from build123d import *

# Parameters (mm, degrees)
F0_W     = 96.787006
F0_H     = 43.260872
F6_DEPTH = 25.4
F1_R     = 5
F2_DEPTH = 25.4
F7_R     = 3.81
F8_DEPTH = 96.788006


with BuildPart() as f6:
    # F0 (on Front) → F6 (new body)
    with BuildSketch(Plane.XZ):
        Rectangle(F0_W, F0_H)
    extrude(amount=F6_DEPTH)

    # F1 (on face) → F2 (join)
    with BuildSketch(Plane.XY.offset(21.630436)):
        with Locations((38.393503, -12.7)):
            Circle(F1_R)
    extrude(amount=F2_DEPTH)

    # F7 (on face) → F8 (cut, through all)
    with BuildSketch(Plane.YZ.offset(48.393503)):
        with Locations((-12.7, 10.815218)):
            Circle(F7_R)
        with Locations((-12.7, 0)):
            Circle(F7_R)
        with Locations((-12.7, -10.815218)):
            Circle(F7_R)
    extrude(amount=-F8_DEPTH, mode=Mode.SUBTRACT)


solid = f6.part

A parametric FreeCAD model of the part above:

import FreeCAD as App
import Part
import Sketcher

V = App.Vector
Q = App.Units.Quantity

doc = App.newDocument("Part")
body = doc.addObject("PartDesign::Body", "Body")

sketch1 = body.newObject("Sketcher::SketchObject", "Sketch")
sketch1.AttachmentSupport = (doc.getObject("XZ_Plane"), [""])
sketch1.MapMode = "FlatFace"
sketch1.addGeometry([
    Part.LineSegment(V(-48, 22, 0), V(-48, -22, 0)),
    Part.LineSegment(V(-48, -22, 0), V(48, -22, 0)),
    Part.LineSegment(V(48, -22, 0), V(48, 22, 0)),
    Part.LineSegment(V(48, 22, 0), V(-48, 22, 0)),
], False)
sketch1.addConstraint([
    Sketcher.Constraint("Coincident", 0, 2, 1, 1),
    Sketcher.Constraint("Coincident", 1, 2, 2, 1),
    Sketcher.Constraint("Coincident", 2, 2, 3, 1),
    Sketcher.Constraint("Coincident", 3, 2, 0, 1),
    Sketcher.Constraint("Vertical", 0),
    Sketcher.Constraint("Horizontal", 1),
    Sketcher.Constraint("Vertical", 2),
    Sketcher.Constraint("Horizontal", 3),
    Sketcher.Constraint("Symmetric", 0, 2, 2, 2, -1, 1),
    Sketcher.Constraint("DistanceX", 1, 1, 1, 2, 96.787006),
    Sketcher.Constraint("DistanceY", 0, 2, 0, 1, 43.260872),
])
pad1 = body.newObject("PartDesign::Pad", "Pad")
pad1.Profile = sketch1
pad1.Length = Q("1 in")

sketch2 = body.newObject("Sketcher::SketchObject", "Sketch001")
sketch2.AttachmentSupport = (doc.getObject("XY_Plane"), [""])
sketch2.MapMode = "FlatFace"
sketch2.AttachmentOffset = App.Placement(V(0, 0, 21.630436), App.Rotation())
sketch2.addGeometry(Part.Circle(V(38, -13, 0), V(0, 0, 1), 5), False)
sketch2.addConstraint([
    Sketcher.Constraint("DistanceY", 0, 3, -1, 1, Q("0.5 in")),
    Sketcher.Constraint("Diameter", 0, 10.0),
    Sketcher.Constraint("DistanceX", -1, 1, 0, 3, 38.393503),
])
pad2 = body.newObject("PartDesign::Pad", "Pad001")
pad2.Profile = sketch2
pad2.Length = Q("1 in")

sketch3 = body.newObject("Sketcher::SketchObject", "Sketch002")
sketch3.AttachmentSupport = (doc.getObject("YZ_Plane"), [""])
sketch3.MapMode = "FlatFace"
sketch3.AttachmentOffset = App.Placement(V(0, 0, 48.393503), App.Rotation())
sketch3.addGeometry([
    Part.Circle(V(-12.7, 10.8, 0), V(0, 0, 1), 3.8),
    Part.Circle(V(-12.7, 0, 0), V(0, 0, 1), 3.8),
    Part.Circle(V(-12.7, -10.8, 0), V(0, 0, 1), 3.8),
], False)
sketch3.addConstraint([
    Sketcher.Constraint("Equal", 0, 1),
    Sketcher.Constraint("Equal", 1, 2),
    Sketcher.Constraint("Symmetric", 0, 3, 2, 3, -1),
    Sketcher.Constraint("PointOnObject", 1, 3, -1),
    Sketcher.Constraint("Vertical", 0, 3, 1, 3),
    Sketcher.Constraint("Diameter", 0, Q("0.3 in")),
    Sketcher.Constraint("DistanceX", 0, 3, -1, 1, Q("0.5 in")),
    Sketcher.Constraint("DistanceY", -1, 1, 0, 3, 10.815218),
])
pocket1 = body.newObject("PartDesign::Pocket", "Pocket")
pocket1.Profile = sketch3
pocket1.Type = "ThroughAll"

doc.recompute()
